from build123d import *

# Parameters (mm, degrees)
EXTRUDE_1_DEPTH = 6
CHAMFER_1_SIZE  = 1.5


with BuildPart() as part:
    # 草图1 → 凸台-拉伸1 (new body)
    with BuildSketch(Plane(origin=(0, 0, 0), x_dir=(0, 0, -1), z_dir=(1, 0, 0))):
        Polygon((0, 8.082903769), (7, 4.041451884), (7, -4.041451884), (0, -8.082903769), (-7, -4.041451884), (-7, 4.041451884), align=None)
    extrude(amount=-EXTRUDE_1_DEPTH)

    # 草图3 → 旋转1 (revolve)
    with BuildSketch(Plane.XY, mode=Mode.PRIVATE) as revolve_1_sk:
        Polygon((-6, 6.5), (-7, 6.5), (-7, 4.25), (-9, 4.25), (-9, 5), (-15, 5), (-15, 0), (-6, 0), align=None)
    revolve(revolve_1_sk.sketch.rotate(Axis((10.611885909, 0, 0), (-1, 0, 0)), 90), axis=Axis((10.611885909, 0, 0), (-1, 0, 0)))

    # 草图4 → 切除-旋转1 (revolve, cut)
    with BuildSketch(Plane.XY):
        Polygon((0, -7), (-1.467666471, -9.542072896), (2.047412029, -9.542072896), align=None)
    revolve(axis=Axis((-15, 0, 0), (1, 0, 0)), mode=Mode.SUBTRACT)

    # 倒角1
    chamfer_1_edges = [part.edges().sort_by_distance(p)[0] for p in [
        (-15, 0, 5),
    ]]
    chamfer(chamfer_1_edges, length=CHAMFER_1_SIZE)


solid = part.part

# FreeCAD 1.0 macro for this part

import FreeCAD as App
import Part
import Sketcher
from FreeCAD import Vector
Q = App.Units.Quantity


def edges_at(feature, points):
    """Names of the edges that pass closest to the given points."""
    edges = feature.Shape.Edges
    near = lambda p: min(range(len(edges)), key=lambda i: edges[i].distToShape(Part.Vertex(*p))[0])
    return sorted({f"Edge{near(p) + 1}" for p in points})

doc = App.newDocument("Part")
body = doc.addObject("PartDesign::Body", "Body")

# Sketch on YZ plane
sketch1 = body.newObject("Sketcher::SketchObject", "Sketch")
sketch1.AttachmentSupport = (doc.getObject("YZ_Plane"), [""])
sketch1.MapMode = "FlatFace"
sketch1.addGeometry(Part.LineSegment(Vector(4, -7, 0), Vector(8, 0, 0)), False)
sketch1.addGeometry(Part.LineSegment(Vector(8, 0, 0), Vector(4, 7, 0)), False)
sketch1.addGeometry(Part.LineSegment(Vector(4, 7, 0), Vector(-4, 7, 0)), False)
sketch1.addGeometry(Part.LineSegment(Vector(-4, 7, 0), Vector(-8, 0, 0)), False)
sketch1.addGeometry(Part.LineSegment(Vector(-8, 0, 0), Vector(-4, -7, 0)), False)
sketch1.addGeometry(Part.LineSegment(Vector(-4, -7, 0), Vector(4, -7, 0)), False)
sketch1.addConstraint(Sketcher.Constraint("Coincident", 0, 2, 1, 1))
sketch1.addConstraint(Sketcher.Constraint("Coincident", 1, 2, 2, 1))
sketch1.addConstraint(Sketcher.Constraint("Coincident", 2, 2, 3, 1))
sketch1.addConstraint(Sketcher.Constraint("Coincident", 3, 2, 4, 1))
sketch1.addConstraint(Sketcher.Constraint("Coincident", 4, 2, 5, 1))
sketch1.addConstraint(Sketcher.Constraint("Coincident", 5, 2, 0, 1))
sketch1.addConstraint(Sketcher.Constraint("Horizontal", 2))
sketch1.addConstraint(Sketcher.Constraint("Horizontal", 5))
sketch1.addConstraint(Sketcher.Constraint("Symmetric", 0, 2, 3, 2, -1, 1))
sketch1.addConstraint(Sketcher.Constraint("Symmetric", 1, 2, 4, 2, -1, 1))
sketch1.addConstraint(Sketcher.Constraint("PointOnObject", 0, 2, -1))
sketch1.addConstraint(Sketcher.Constraint("Parallel", 0, 3))
sketch1.addConstraint(Sketcher.Constraint("Vertical", 2, 2, 4, 2))
sketch1.addConstraint(Sketcher.Constraint("Angle", 0, Q("60 deg")))
sketch1.addConstraint(Sketcher.Constraint("DistanceY", -1, 1, 1, 2, 7.0))
sketch1.addConstraint(Sketcher.Constraint("DistanceX", 2, 2, 2, 1, 8.082904))
pad1 = body.newObject("PartDesign::Pad", "Pad")
pad1.Profile = sketch1
pad1.Length = 6
pad1.Reversed = True

# Sketch on XY plane
sketch2 = body.newObject("Sketcher::SketchObject", "Sketch001")
sketch2.AttachmentSupport = (doc.getObject("XY_Plane"), [""])
sketch2.MapMode = "FlatFace"
sketch2.addGeometry(Part.LineSegment(Vector(-6, 6.5, 0), Vector(-7, 6.5, 0)), False)
sketch2.addGeometry(Part.LineSegment(Vector(-7, 6.5, 0), Vector(-7, 4.2, 0)), False)
sketch2.addGeometry(Part.LineSegment(Vector(-7, 4.2, 0), Vector(-9, 4.2, 0)), False)
sketch2.addGeometry(Part.LineSegment(Vector(-9, 4.2, 0), Vector(-9, 5, 0)), False)
sketch2.addGeometry(Part.LineSegment(Vector(-9, 5, 0), Vector(-15, 5, 0)), False)
sketch2.addGeometry(Part.LineSegment(Vector(-15, 5, 0), Vector(-15, 0, 0)), False)
sketch2.addGeometry(Part.LineSegment(Vector(-15, 0, 0), Vector(-6, 0, 0)), False)
sketch2.addGeometry(Part.LineSegment(Vector(-6, 0, 0), Vector(-6, 6.5, 0)), False)
sketch2.addConstraint(Sketcher.Constraint("Coincident", 0, 2, 1, 1))
sketch2.addConstraint(Sketcher.Constraint("Coincident", 1, 2, 2, 1))
sketch2.addConstraint(Sketcher.Constraint("Coincident", 2, 2, 3, 1))
sketch2.addConstraint(Sketcher.Constraint("Coincident", 3, 2, 4, 1))
sketch2.addConstraint(Sketcher.Constraint("Coincident", 4, 2, 5, 1))
sketch2.addConstraint(Sketcher.Constraint("Coincident", 5, 2, 6, 1))
sketch2.addConstraint(Sketcher.Constraint("Coincident", 6, 2, 7, 1))
sketch2.addConstraint(Sketcher.Constraint("Coincident", 7, 2, 0, 1))
sketch2.addConstraint(Sketcher.Constraint("Horizontal", 0))
sketch2.addConstraint(Sketcher.Constraint("Vertical", 1))
sketch2.addConstraint(Sketcher.Constraint("Horizontal", 2))
sketch2.addConstraint(Sketcher.Constraint("Vertical", 3))
sketch2.addConstraint(Sketcher.Constraint("Horizontal", 4))
sketch2.addConstraint(Sketcher.Constraint("Vertical", 5))
sketch2.addConstraint(Sketcher.Constraint("Horizontal", 6))
sketch2.addConstraint(Sketcher.Constraint("Vertical", 7))
sketch2.addConstraint(Sketcher.Constraint("PointOnObject", 5, 2, -1))
sketch2.addConstraint(Sketcher.Constraint("DistanceX", 0, 2, 0, 1, 1.0))
sketch2.addConstraint(Sketcher.Constraint("DistanceX", 2, 2, 2, 1, 2.0))
sketch2.addConstraint(Sketcher.Constraint("DistanceX", 4, 2, 4, 1, 6.0))
sketch2.addConstraint(Sketcher.Constraint("DistanceY", 5, 2, 5, 1, 5.0))
sketch2.addConstraint(Sketcher.Constraint("DistanceY", 7, 1, 7, 2, 6.5))
sketch2.addConstraint(Sketcher.Constraint("DistanceX", 0, 2, -1, 1, 7.0))
sketch2.addConstraint(Sketcher.Constraint("DistanceY", 1, 2, 1, 1, 2.25))
revolution = body.newObject("PartDesign::Revolution", "Revolution")
revolution.Profile = sketch2
revolution.ReferenceAxis = (sketch2, ["H_Axis"])
revolution.Angle = 360

# Sketch on XY plane
sketch3 = body.newObject("Sketcher::SketchObject", "Sketch002")
sketch3.AttachmentSupport = (doc.getObject("XY_Plane"), [""])
sketch3.MapMode = "FlatFace"
sketch3.addGeometry(Part.LineSegment(Vector(0, -7, 0), Vector(-1.5, -9.5, 0)), False)
sketch3.addGeometry(Part.LineSegment(Vector(-1.5, -9.5, 0), Vector(2, -9.5, 0)), False)
sketch3.addGeometry(Part.LineSegment(Vector(2, -9.5, 0), Vector(0, -7, 0)), False)
sketch3.addConstraint(Sketcher.Constraint("Coincident", 0, 2, 1, 1))
sketch3.addConstraint(Sketcher.Constraint("Coincident", 1, 2, 2, 1))
sketch3.addConstraint(Sketcher.Constraint("Coincident", 2, 2, 0, 1))
sketch3.addConstraint(Sketcher.Constraint("Horizontal", 1))
sketch3.addConstraint(Sketcher.Constraint("PointOnObject", 2, 2, -2))
sketch3.addConstraint(Sketcher.Constraint("Angle", 0, Q("-120 deg")))
sketch3.addConstraint(Sketcher.Constraint("DistanceY", 2, 2, -1, 1, 7.0))
sketch3.addConstraint(Sketcher.Constraint("DistanceX", 1, 1, 1, 2, 3.515079))
sketch3.addConstraint(Sketcher.Constraint("Distance", 2, 3.264051))
groove = body.newObject("PartDesign::Groove", "Groove")
groove.Profile = sketch3
groove.ReferenceAxis = (sketch3, ["H_Axis"])
groove.Angle = 360
doc.recompute()

chamfer = body.newObject("PartDesign::Chamfer", "Chamfer")
chamfer.Base = (groove, edges_at(groove, [(-15, 0, 5)]))
chamfer.Size = 1.5

doc.recompute()
